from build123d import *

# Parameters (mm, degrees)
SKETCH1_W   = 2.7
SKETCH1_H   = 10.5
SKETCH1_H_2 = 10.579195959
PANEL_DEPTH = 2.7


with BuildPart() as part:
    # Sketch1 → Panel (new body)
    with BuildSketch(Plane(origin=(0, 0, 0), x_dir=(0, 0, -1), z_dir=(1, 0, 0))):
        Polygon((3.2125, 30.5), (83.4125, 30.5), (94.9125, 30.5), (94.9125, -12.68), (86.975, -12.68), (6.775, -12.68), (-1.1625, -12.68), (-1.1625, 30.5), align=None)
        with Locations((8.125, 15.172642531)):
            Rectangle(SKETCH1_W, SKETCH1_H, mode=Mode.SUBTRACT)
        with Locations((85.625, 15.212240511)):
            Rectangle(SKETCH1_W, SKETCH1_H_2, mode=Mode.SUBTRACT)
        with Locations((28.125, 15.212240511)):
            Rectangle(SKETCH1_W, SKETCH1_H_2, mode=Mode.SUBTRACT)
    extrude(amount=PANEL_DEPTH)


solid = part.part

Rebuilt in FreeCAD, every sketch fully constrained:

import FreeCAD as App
import Part
import Sketcher
from FreeCAD import Vector
Q = App.Units.Quantity

doc = App.newDocument("Part")
body = doc.addObject("PartDesign::Body", "Body")

# Sketch on YZ plane
sketch1 = doc.addObject("Sketcher::SketchObject", "Sketch")
body.addObject(sketch1)
sketch1.AttachmentSupport = (doc.YZ_Plane, [""])
sketch1.MapMode = "FlatFace"
sketch1.addGeometry([
    Part.LineSegment(Vector(30.5, -94.9125, 0), Vector(30.5, 1.1625, 0)),  # 0
    Part.LineSegment(Vector(30.5, 1.1625, 0), Vector(-12.68, 1.1625, 0)),  # 1
    Part.LineSegment(Vector(-12.68, 1.1625, 0), Vector(-12.68, -94.9125, 0)),  # 2
    Part.LineSegment(Vector(-12.68, -94.9125, 0), Vector(30.5, -94.9125, 0)),  # 3
    Part.LineSegment(Vector(9.922643, -6.775, 0), Vector(20.422643, -6.775, 0)),  # 4
    Part.LineSegment(Vector(20.422643, -6.775, 0), Vector(20.422643, -9.475, 0)),  # 5
    Part.LineSegment(Vector(20.422643, -9.475, 0), Vector(9.922643, -9.475, 0)),  # 6
    Part.LineSegment(Vector(9.922643, -9.475, 0), Vector(9.922643, -6.775, 0)),  # 7
    Part.LineSegment(Vector(9.922643, -84.275, 0), Vector(20.501838, -84.275, 0)),  # 8
    Part.LineSegment(Vector(20.501838, -84.275, 0), Vector(20.501838, -86.975, 0)),  # 9
    Part.LineSegment(Vector(20.501838, -86.975, 0), Vector(9.922643, -86.975, 0)),  # 10
    Part.LineSegment(Vector(9.922643, -86.975, 0), Vector(9.922643, -84.275, 0)),  # 11
    Part.LineSegment(Vector(9.922643, -26.775, 0), Vector(20.501838, -26.775, 0)),  # 12
    Part.LineSegment(Vector(20.501838, -26.775, 0), Vector(20.501838, -29.475, 0)),  # 13
    Part.LineSegment(Vector(20.501838, -29.475, 0), Vector(9.922643, -29.475, 0)),  # 14
    Part.LineSegment(Vector(9.922643, -29.475, 0), Vector(9.922643, -26.775, 0)),  # 15
], False)
sketch1.addConstraint([
    Sketcher.Constraint("Coincident", 0, 2, 1, 1),
    Sketcher.Constraint("Coincident", 1, 2, 2, 1),
    Sketcher.Constraint("Coincident", 2, 2, 3, 1),
    Sketcher.Constraint("Coincident", 3, 2, 0, 1),
    Sketcher.Constraint("Coincident", 4, 2, 5, 1),
    Sketcher.Constraint("Coincident", 5, 2, 6, 1),
    Sketcher.Constraint("Coincident", 6, 2, 7, 1),
    Sketcher.Constraint("Coincident", 7, 2, 4, 1),
    Sketcher.Constraint("Coincident", 8, 2, 9, 1),
    Sketcher.Constraint("Coincident", 9, 2, 10, 1),
    Sketcher.Constraint("Coincident", 10, 2, 11, 1),
    Sketcher.Constraint("Coincident", 11, 2, 8, 1),
    Sketcher.Constraint("Coincident", 12, 2, 13, 1),
    Sketcher.Constraint("Coincident", 13, 2, 14, 1),
    Sketcher.Constraint("Coincident", 14, 2, 15, 1),
    Sketcher.Constraint("Coincident", 15, 2, 12, 1),
    Sketcher.Constraint("Vertical", 0),
    Sketcher.Constraint("Horizontal", 1),
    Sketcher.Constraint("Vertical", 2),
    Sketcher.Constraint("Horizontal", 3),
    Sketcher.Constraint("Horizontal", 4),
    Sketcher.Constraint("Vertical", 5),
    Sketcher.Constraint("Horizontal", 6),
    Sketcher.Constraint("Vertical", 7),
    Sketcher.Constraint("Horizontal", 8),
    Sketcher.Constraint("Vertical", 9),
    Sketcher.Constraint("Horizontal", 10),
    Sketcher.Constraint("Vertical", 11),
    Sketcher.Constraint("Horizontal", 12),
    Sketcher.Constraint("Vertical", 13),
    Sketcher.Constraint("Horizontal", 14),
    Sketcher.Constraint("Vertical", 15),
    Sketcher.Constraint("Vertical", 7, 2, 10, 2),
    Sketcher.Constraint("Vertical", 9, 2, 12, 2),
    Sketcher.Constraint("Vertical", 11, 2, 14, 2),
    Sketcher.Constraint("Equal", 7, 9),
    Sketcher.Constraint("Equal", 11, 13),
    Sketcher.Constraint("DistanceX", 4, 1, 4, 2, Q("10.5 mm")),
    Sketcher.Constraint("DistanceY", 5, 2, 5, 1, Q("2.7 mm")),
    Sketcher.Constraint("DistanceY", 12, 2, 4, 2, Q("20 mm")),
    Sketcher.Constraint("DistanceX", 1, 2, 1, 1, Q("43.18 mm")),
    Sketcher.Constraint("DistanceX", -1, 1, 0, 2, Q("30.5 mm")),
    Sketcher.Constraint("DistanceY", 8, 2, 5, 2, Q("74.8 mm")),
    Sketcher.Constraint("DistanceY", 0, 1, 0, 2, Q("96.075 mm")),
    Sketcher.Constraint("DistanceY", 4, 2, -1, 1, Q("6.775 mm")),
    Sketcher.Constraint("DistanceY", -1, 1, 0, 2, Q("1.1625 mm")),
    Sketcher.Constraint("DistanceX", 8, 1, 8, 2, Q("10.579196 mm")),
    Sketcher.Constraint("DistanceX", -1, 1, 8, 2, Q("20.501838 mm")),
])
pad1 = doc.addObject("PartDesign::Pad", "Pad")
body.addObject(pad1)
pad1.Profile = sketch1
pad1.Length = 2.7

doc.recompute()
